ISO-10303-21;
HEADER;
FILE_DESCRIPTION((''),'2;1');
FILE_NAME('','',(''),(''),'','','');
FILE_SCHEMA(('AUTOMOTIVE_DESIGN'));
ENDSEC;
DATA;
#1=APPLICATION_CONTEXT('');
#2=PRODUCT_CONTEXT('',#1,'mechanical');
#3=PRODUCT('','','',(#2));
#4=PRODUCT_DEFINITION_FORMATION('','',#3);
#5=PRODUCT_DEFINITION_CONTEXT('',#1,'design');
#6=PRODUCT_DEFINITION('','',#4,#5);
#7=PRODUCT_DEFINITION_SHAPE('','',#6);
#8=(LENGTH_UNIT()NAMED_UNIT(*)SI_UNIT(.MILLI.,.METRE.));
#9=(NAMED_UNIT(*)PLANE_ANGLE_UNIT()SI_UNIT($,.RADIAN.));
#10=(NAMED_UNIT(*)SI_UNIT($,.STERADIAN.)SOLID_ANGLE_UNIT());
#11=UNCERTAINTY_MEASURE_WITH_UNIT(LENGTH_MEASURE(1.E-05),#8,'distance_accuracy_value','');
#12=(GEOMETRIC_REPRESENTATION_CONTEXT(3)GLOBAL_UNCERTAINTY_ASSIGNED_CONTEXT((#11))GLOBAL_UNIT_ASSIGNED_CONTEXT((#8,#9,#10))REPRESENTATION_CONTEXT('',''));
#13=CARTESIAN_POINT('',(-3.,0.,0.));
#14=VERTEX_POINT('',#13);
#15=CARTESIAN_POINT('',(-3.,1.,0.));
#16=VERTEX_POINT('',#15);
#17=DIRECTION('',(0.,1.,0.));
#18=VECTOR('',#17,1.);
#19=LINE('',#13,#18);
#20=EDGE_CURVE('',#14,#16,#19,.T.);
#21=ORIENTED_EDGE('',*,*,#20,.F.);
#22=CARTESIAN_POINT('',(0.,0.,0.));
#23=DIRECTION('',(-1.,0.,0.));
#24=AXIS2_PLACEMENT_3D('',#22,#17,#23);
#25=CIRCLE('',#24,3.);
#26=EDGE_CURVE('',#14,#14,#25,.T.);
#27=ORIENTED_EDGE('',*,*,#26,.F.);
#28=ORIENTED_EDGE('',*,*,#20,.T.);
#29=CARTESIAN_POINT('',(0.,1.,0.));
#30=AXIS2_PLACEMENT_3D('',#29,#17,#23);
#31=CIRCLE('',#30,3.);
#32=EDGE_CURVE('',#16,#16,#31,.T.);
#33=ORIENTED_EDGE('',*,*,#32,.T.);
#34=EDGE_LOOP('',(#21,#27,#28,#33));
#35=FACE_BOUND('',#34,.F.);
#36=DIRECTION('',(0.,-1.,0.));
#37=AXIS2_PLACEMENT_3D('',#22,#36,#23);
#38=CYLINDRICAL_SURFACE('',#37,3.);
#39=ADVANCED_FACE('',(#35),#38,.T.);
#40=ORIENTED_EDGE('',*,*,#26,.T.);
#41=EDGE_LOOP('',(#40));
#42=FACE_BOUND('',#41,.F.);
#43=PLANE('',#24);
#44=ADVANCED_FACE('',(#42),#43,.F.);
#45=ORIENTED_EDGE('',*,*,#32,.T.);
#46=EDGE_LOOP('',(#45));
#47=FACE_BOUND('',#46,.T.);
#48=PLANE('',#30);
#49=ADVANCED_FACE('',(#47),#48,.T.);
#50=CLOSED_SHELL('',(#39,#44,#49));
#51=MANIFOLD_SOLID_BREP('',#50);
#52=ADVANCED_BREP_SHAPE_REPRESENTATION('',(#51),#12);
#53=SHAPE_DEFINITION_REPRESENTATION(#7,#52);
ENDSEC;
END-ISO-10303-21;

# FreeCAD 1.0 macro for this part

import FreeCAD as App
import Part
import Sketcher

doc = App.newDocument("Part")
body = doc.addObject("PartDesign::Body", "Body")

sketch1 = doc.addObject("Sketcher::SketchObject", "Sketch")
body.addObject(sketch1)
sketch1.AttachmentSupport = (doc.XZ_Plane, [""])
sketch1.MapMode = "FlatFace"
sketch1.addGeometry(Part.Circle(App.Vector(0, 0, 0), App.Vector(0, 0, 1), 3), False)
sketch1.addConstraint([
    Sketcher.Constraint("Coincident", 0, 3, -1, 1),
    Sketcher.Constraint("Diameter", 0, 6.0),
])
pad1 = doc.addObject("PartDesign::Pad", "Pad")
body.addObject(pad1)
pad1.Profile = sketch1
pad1.Length = 1
pad1.Reversed = True

doc.recompute()
